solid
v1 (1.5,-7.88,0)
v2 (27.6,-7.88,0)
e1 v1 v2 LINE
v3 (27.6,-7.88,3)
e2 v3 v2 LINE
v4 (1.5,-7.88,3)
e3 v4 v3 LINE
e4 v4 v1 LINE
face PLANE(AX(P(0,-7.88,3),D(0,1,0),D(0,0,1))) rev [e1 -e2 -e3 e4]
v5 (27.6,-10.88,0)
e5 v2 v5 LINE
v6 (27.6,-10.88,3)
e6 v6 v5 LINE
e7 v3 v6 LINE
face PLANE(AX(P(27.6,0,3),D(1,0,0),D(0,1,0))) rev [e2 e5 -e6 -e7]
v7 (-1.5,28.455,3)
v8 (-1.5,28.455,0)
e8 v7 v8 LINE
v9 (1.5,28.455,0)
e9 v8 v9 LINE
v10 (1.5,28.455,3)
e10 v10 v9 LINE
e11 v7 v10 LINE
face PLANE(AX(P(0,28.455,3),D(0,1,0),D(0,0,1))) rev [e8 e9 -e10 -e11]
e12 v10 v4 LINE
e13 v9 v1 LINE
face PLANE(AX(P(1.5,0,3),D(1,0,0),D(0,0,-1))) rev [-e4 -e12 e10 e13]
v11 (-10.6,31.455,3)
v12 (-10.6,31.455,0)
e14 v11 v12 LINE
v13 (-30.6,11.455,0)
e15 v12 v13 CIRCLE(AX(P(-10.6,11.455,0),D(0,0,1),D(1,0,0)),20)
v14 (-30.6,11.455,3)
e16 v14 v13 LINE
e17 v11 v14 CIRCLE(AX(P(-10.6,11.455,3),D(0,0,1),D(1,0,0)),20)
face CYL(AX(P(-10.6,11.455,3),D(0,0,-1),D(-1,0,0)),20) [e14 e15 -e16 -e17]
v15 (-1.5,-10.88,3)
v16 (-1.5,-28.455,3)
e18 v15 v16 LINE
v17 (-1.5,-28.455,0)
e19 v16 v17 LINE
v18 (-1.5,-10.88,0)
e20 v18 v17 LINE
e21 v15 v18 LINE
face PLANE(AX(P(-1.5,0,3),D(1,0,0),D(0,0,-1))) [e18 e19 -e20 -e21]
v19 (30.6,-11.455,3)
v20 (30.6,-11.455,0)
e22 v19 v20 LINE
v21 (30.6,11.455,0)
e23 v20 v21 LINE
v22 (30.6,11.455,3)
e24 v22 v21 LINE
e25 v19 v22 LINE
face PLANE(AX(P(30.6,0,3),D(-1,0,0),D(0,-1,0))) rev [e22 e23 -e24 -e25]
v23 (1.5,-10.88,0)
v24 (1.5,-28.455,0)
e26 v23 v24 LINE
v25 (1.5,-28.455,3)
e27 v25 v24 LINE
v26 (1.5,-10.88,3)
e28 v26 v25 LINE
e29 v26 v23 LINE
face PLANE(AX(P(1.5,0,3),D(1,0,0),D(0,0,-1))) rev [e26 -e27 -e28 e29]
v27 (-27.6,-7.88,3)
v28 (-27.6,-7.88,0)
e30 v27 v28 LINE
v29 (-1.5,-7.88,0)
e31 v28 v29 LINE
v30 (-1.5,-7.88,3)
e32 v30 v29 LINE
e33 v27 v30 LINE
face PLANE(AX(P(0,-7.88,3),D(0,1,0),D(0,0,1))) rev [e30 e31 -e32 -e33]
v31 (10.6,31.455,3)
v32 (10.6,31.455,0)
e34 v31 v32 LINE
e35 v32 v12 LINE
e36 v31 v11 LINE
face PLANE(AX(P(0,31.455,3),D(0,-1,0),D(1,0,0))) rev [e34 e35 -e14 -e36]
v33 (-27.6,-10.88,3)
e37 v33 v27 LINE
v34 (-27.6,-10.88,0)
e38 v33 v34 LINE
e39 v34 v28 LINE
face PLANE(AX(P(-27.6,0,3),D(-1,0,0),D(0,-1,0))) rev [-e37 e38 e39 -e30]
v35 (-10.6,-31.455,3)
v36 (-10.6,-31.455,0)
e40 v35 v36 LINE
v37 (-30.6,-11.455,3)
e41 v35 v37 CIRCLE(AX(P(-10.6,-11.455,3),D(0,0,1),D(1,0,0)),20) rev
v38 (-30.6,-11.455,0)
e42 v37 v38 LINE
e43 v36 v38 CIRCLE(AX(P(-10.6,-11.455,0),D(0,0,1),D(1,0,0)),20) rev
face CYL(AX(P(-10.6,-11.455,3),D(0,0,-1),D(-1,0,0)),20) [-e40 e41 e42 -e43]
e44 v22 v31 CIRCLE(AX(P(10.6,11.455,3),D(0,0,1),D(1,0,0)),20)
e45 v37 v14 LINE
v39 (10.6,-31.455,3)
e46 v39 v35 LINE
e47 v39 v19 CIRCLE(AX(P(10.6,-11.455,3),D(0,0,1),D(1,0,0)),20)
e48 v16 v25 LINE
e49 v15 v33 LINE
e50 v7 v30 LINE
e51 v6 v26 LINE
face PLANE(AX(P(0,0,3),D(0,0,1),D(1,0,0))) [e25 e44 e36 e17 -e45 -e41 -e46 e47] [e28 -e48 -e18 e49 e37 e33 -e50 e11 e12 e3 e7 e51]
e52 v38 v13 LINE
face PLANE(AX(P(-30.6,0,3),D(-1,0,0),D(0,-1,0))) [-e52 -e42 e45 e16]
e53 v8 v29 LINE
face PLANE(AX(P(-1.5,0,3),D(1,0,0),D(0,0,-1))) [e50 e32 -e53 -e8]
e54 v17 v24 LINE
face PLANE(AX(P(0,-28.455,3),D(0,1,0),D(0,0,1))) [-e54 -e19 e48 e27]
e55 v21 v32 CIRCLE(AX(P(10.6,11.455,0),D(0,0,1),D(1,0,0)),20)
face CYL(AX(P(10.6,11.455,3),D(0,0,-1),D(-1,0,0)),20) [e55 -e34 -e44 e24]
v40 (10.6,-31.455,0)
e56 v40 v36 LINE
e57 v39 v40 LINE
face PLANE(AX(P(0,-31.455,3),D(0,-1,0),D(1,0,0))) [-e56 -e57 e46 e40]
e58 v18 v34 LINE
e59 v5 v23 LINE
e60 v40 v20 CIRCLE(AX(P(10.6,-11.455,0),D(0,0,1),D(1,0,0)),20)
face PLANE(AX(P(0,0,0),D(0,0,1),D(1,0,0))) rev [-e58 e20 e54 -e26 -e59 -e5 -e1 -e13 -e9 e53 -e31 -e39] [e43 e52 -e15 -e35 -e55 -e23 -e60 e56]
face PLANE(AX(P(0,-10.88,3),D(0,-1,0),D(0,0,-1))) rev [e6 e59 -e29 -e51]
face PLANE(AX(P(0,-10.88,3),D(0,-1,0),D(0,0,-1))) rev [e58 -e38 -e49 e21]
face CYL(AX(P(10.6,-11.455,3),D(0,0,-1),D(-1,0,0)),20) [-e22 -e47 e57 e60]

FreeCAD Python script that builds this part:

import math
import FreeCAD as App
import Part
import Sketcher
Q = App.Units.Quantity


def add_polygon(sketch, points):
    """Adds a closed chain of lines whose ends are joined by coincident constraints."""
    first, n = sketch.GeometryCount, len(points)
    for a, b in zip(points, points[1:] + points[:1]):
        sketch.addGeometry(Part.LineSegment(App.Vector(*a, 0), App.Vector(*b, 0)), False)
    for i in range(n):
        sketch.addConstraint(Sketcher.Constraint("Coincident", first + i, 2, first + (i + 1) % n, 1))

doc = App.newDocument("Part")
body = doc.addObject("PartDesign::Body", "Body")

# Sketch on XY plane
sketch1 = doc.addObject("Sketcher::SketchObject", "Sketch")
body.addObject(sketch1)
sketch1.AttachmentSupport = (doc.XY_Plane, [""])
sketch1.MapMode = "FlatFace"
sketch1.addGeometry(Part.LineSegment(App.Vector(-10.6, -31.5, 0), App.Vector(10.6, -31.5, 0)), False)  # 0
sketch1.addGeometry(Part.ArcOfCircle(Part.Circle(App.Vector(10.6, -11.5, 0), App.Vector(0, 0, 1), 20), math.radians(-90), math.radians(0)), False)  # 1
sketch1.addGeometry(Part.LineSegment(App.Vector(30.6, -11.5, 0), App.Vector(30.6, 11.5, 0)), False)  # 2
sketch1.addGeometry(Part.ArcOfCircle(Part.Circle(App.Vector(10.6, 11.5, 0), App.Vector(0, 0, 1), 20), math.radians(0), math.radians(90)), False)  # 3
sketch1.addGeometry(Part.LineSegment(App.Vector(10.6, 31.5, 0), App.Vector(-10.6, 31.5, 0)), False)  # 4
sketch1.addGeometry(Part.ArcOfCircle(Part.Circle(App.Vector(-10.6, 11.5, 0), App.Vector(0, 0, 1), 20), math.radians(90), math.radians(180)), False)  # 5
sketch1.addGeometry(Part.LineSegment(App.Vector(-30.6, 11.5, 0), App.Vector(-30.6, -11.5, 0)), False)  # 6
sketch1.addGeometry(Part.ArcOfCircle(Part.Circle(App.Vector(-10.6, -11.5, 0), App.Vector(0, 0, 1), 20), math.radians(180), math.radians(270)), False)  # 7
add_polygon(sketch1, [(-1.5, -10.9), (-27.6, -10.9), (-27.6, -7.9), (-1.5, -7.9), (-1.5, 28.5), (1.5, 28.5), (1.5, -7.9), (27.6, -7.9), (27.6, -10.9), (1.5, -10.9), (1.5, -28.5), (-1.5, -28.5)])  # lines 8-19
sketch1.addConstraint(Sketcher.Constraint("Tangent", 0, 2, 1, 1))
sketch1.addConstraint(Sketcher.Constraint("Tangent", 1, 2, 2, 1))
sketch1.addConstraint(Sketcher.Constraint("Tangent", 2, 2, 3, 1))
sketch1.addConstraint(Sketcher.Constraint("Tangent", 3, 2, 4, 1))
sketch1.addConstraint(Sketcher.Constraint("Tangent", 4, 2, 5, 1))
sketch1.addConstraint(Sketcher.Constraint("Tangent", 5, 2, 6, 1))
sketch1.addConstraint(Sketcher.Constraint("Tangent", 6, 2, 7, 1))
sketch1.addConstraint(Sketcher.Constraint("Tangent", 7, 2, 0, 1))
sketch1.addConstraint(Sketcher.Constraint("Horizontal", 0))
sketch1.addConstraint(Sketcher.Constraint("Vertical", 2))
sketch1.addConstraint(Sketcher.Constraint("Horizontal", 4))
sketch1.addConstraint(Sketcher.Constraint("Vertical", 6))
sketch1.addConstraint(Sketcher.Constraint("Horizontal", 8))
sketch1.addConstraint(Sketcher.Constraint("Vertical", 9))
sketch1.addConstraint(Sketcher.Constraint("Horizontal", 10))
sketch1.addConstraint(Sketcher.Constraint("Vertical", 11))
sketch1.addConstraint(Sketcher.Constraint("Horizontal", 12))
sketch1.addConstraint(Sketcher.Constraint("Vertical", 13))
sketch1.addConstraint(Sketcher.Constraint("Horizontal", 14))
sketch1.addConstraint(Sketcher.Constraint("Vertical", 15))
sketch1.addConstraint(Sketcher.Constraint("Horizontal", 16))
sketch1.addConstraint(Sketcher.Constraint("Vertical", 17))
sketch1.addConstraint(Sketcher.Constraint("Horizontal", 18))
sketch1.addConstraint(Sketcher.Constraint("Vertical", 19))
sketch1.addConstraint(Sketcher.Constraint("Equal", 1, 3))
sketch1.addConstraint(Sketcher.Constraint("Equal", 3, 5))
sketch1.addConstraint(Sketcher.Constraint("Equal", 5, 7))
sketch1.addConstraint(Sketcher.Constraint("Symmetric", 1, 3, 5, 3, -1, 1))
sketch1.addConstraint(Sketcher.Constraint("Symmetric", 11, 2, 17, 2, -1, 1))
sketch1.addConstraint(Sketcher.Constraint("Symmetric", 10, 2, 13, 2, -2))
sketch1.addConstraint(Sketcher.Constraint("Symmetric", 8, 2, 15, 2, -2))
sketch1.addConstraint(Sketcher.Constraint("Vertical", 11, 2, 18, 2))
sketch1.addConstraint(Sketcher.Constraint("Equal", 18, 9))
sketch1.addConstraint(Sketcher.Constraint("Radius", 1, Q("20 mm")))
sketch1.addConstraint(Sketcher.Constraint("DistanceX", 12, 1, 12, 2, Q("3 mm")))
sketch1.addConstraint(Sketcher.Constraint("DistanceX", 0, 1, 0, 2, Q("21.2 mm")))
sketch1.addConstraint(Sketcher.Constraint("DistanceX", 8, 2, 8, 1, Q("26.1 mm")))
sketch1.addConstraint(Sketcher.Constraint("DistanceY", 11, 2, 4, 2, Q("3 mm")))
sketch1.addConstraint(Sketcher.Constraint("DistanceY", 2, 1, 2, 2, Q("22.91 mm")))
sketch1.addConstraint(Sketcher.Constraint("DistanceY", 11, 1, 11, 2, Q("36.335 mm")))
pad1 = doc.addObject("PartDesign::Pad", "Pad")
body.addObject(pad1)
pad1.Profile = sketch1
pad1.Length = 3

doc.recompute()
